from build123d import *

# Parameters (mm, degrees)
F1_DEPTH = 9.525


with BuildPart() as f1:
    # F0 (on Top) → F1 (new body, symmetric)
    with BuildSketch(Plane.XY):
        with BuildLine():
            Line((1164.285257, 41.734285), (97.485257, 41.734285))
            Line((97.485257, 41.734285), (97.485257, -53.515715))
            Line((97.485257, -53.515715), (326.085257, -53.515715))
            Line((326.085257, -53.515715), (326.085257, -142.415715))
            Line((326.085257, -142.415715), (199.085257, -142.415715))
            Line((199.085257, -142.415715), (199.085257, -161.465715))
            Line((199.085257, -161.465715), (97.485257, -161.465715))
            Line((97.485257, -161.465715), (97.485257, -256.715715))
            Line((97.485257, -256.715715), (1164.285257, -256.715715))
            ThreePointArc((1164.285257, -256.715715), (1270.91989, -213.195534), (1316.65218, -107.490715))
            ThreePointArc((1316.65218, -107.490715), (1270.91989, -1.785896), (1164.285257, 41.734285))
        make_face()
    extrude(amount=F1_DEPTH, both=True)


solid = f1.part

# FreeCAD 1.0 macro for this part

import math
import FreeCAD as App
import Part
import Sketcher

V = App.Vector
Q = App.Units.Quantity

doc = App.newDocument("Part")
body = doc.addObject("PartDesign::Body", "Body")

# Sketch on XY plane
sketch1 = doc.addObject("Sketcher::SketchObject", "Sketch")
body.addObject(sketch1)
sketch1.AttachmentSupport = (doc.XY_Plane, [""])
sketch1.MapMode = "FlatFace"
sketch1.addGeometry([
    Part.LineSegment(V(1164, 42, 0), V(97, 42, 0)),  # 0
    Part.LineSegment(V(97, 42, 0), V(97, -54, 0)),  # 1
    Part.LineSegment(V(97, -54, 0), V(326, -54, 0)),  # 2
    Part.LineSegment(V(326, -54, 0), V(326, -142, 0)),  # 3
    Part.LineSegment(V(326, -142, 0), V(199, -142, 0)),  # 4
    Part.LineSegment(V(199, -142, 0), V(199, -161, 0)),  # 5
    Part.LineSegment(V(199, -161, 0), V(97, -161, 0)),  # 6
    Part.LineSegment(V(97, -161, 0), V(97, -257, 0)),  # 7
    Part.LineSegment(V(97, -257, 0), V(1164, -257, 0)),  # 8
    Part.ArcOfCircle(Part.Circle(V(1164, -104, 0), V(0, 0, 1), 152), math.radians(-90), math.radians(-1)),  # 9
    Part.ArcOfCircle(Part.Circle(V(1164, -111, 0), V(0, 0, 1), 152), math.radians(1), math.radians(90)),  # 10
], False)
sketch1.addConstraint([
    Sketcher.Constraint("Coincident", 0, 2, 1, 1),
    Sketcher.Constraint("Coincident", 1, 2, 2, 1),
    Sketcher.Constraint("Coincident", 2, 2, 3, 1),
    Sketcher.Constraint("Coincident", 3, 2, 4, 1),
    Sketcher.Constraint("Coincident", 4, 2, 5, 1),
    Sketcher.Constraint("Coincident", 5, 2, 6, 1),
    Sketcher.Constraint("Coincident", 6, 2, 7, 1),
    Sketcher.Constraint("Coincident", 7, 2, 8, 1),
    Sketcher.Constraint("Tangent", 8, 2, 9, 1),
    Sketcher.Constraint("Coincident", 9, 2, 10, 1),
    Sketcher.Constraint("Tangent", 10, 2, 0, 1),
    Sketcher.Constraint("Horizontal", 0),
    Sketcher.Constraint("Vertical", 1),
    Sketcher.Constraint("Horizontal", 2),
    Sketcher.Constraint("Vertical", 3),
    Sketcher.Constraint("Horizontal", 4),
    Sketcher.Constraint("Vertical", 5),
    Sketcher.Constraint("Horizontal", 6),
    Sketcher.Constraint("Vertical", 7),
    Sketcher.Constraint("Horizontal", 8),
    Sketcher.Constraint("Equal", 9, 10),
    Sketcher.Constraint("Vertical", 9, 3, 10, 3),
    Sketcher.Constraint("Vertical", 1, 2, 6, 2),
    Sketcher.Constraint("Equal", 1, 7),
    Sketcher.Constraint("Radius", 9, Q("6 in")),
    Sketcher.Constraint("DistanceX", 0, 2, 0, 1, Q("42 in")),
    Sketcher.Constraint("DistanceX", 2, 1, 2, 2, Q("9 in")),
    Sketcher.Constraint("DistanceX", 4, 2, 4, 1, Q("5 in")),
    Sketcher.Constraint("DistanceY", 3, 2, 3, 1, Q("3.5 in")),
    Sketcher.Constraint("DistanceY", 9, 3, 1, 2, Q("2 in")),
    Sketcher.Constraint("DistanceY", 1, 2, 1, 1, Q("3.75 in")),
    Sketcher.Constraint("DistanceX", -1, 1, 9, 2, Q("51.8367 in")),
    Sketcher.Constraint("DistanceY", 9, 3, -1, 1, 104.315715),
])
pad1 = doc.addObject("PartDesign::Pad", "Pad")
body.addObject(pad1)
pad1.Profile = sketch1
pad1.Length = Q("0.75 in")
pad1.Midplane = True

doc.recompute()
